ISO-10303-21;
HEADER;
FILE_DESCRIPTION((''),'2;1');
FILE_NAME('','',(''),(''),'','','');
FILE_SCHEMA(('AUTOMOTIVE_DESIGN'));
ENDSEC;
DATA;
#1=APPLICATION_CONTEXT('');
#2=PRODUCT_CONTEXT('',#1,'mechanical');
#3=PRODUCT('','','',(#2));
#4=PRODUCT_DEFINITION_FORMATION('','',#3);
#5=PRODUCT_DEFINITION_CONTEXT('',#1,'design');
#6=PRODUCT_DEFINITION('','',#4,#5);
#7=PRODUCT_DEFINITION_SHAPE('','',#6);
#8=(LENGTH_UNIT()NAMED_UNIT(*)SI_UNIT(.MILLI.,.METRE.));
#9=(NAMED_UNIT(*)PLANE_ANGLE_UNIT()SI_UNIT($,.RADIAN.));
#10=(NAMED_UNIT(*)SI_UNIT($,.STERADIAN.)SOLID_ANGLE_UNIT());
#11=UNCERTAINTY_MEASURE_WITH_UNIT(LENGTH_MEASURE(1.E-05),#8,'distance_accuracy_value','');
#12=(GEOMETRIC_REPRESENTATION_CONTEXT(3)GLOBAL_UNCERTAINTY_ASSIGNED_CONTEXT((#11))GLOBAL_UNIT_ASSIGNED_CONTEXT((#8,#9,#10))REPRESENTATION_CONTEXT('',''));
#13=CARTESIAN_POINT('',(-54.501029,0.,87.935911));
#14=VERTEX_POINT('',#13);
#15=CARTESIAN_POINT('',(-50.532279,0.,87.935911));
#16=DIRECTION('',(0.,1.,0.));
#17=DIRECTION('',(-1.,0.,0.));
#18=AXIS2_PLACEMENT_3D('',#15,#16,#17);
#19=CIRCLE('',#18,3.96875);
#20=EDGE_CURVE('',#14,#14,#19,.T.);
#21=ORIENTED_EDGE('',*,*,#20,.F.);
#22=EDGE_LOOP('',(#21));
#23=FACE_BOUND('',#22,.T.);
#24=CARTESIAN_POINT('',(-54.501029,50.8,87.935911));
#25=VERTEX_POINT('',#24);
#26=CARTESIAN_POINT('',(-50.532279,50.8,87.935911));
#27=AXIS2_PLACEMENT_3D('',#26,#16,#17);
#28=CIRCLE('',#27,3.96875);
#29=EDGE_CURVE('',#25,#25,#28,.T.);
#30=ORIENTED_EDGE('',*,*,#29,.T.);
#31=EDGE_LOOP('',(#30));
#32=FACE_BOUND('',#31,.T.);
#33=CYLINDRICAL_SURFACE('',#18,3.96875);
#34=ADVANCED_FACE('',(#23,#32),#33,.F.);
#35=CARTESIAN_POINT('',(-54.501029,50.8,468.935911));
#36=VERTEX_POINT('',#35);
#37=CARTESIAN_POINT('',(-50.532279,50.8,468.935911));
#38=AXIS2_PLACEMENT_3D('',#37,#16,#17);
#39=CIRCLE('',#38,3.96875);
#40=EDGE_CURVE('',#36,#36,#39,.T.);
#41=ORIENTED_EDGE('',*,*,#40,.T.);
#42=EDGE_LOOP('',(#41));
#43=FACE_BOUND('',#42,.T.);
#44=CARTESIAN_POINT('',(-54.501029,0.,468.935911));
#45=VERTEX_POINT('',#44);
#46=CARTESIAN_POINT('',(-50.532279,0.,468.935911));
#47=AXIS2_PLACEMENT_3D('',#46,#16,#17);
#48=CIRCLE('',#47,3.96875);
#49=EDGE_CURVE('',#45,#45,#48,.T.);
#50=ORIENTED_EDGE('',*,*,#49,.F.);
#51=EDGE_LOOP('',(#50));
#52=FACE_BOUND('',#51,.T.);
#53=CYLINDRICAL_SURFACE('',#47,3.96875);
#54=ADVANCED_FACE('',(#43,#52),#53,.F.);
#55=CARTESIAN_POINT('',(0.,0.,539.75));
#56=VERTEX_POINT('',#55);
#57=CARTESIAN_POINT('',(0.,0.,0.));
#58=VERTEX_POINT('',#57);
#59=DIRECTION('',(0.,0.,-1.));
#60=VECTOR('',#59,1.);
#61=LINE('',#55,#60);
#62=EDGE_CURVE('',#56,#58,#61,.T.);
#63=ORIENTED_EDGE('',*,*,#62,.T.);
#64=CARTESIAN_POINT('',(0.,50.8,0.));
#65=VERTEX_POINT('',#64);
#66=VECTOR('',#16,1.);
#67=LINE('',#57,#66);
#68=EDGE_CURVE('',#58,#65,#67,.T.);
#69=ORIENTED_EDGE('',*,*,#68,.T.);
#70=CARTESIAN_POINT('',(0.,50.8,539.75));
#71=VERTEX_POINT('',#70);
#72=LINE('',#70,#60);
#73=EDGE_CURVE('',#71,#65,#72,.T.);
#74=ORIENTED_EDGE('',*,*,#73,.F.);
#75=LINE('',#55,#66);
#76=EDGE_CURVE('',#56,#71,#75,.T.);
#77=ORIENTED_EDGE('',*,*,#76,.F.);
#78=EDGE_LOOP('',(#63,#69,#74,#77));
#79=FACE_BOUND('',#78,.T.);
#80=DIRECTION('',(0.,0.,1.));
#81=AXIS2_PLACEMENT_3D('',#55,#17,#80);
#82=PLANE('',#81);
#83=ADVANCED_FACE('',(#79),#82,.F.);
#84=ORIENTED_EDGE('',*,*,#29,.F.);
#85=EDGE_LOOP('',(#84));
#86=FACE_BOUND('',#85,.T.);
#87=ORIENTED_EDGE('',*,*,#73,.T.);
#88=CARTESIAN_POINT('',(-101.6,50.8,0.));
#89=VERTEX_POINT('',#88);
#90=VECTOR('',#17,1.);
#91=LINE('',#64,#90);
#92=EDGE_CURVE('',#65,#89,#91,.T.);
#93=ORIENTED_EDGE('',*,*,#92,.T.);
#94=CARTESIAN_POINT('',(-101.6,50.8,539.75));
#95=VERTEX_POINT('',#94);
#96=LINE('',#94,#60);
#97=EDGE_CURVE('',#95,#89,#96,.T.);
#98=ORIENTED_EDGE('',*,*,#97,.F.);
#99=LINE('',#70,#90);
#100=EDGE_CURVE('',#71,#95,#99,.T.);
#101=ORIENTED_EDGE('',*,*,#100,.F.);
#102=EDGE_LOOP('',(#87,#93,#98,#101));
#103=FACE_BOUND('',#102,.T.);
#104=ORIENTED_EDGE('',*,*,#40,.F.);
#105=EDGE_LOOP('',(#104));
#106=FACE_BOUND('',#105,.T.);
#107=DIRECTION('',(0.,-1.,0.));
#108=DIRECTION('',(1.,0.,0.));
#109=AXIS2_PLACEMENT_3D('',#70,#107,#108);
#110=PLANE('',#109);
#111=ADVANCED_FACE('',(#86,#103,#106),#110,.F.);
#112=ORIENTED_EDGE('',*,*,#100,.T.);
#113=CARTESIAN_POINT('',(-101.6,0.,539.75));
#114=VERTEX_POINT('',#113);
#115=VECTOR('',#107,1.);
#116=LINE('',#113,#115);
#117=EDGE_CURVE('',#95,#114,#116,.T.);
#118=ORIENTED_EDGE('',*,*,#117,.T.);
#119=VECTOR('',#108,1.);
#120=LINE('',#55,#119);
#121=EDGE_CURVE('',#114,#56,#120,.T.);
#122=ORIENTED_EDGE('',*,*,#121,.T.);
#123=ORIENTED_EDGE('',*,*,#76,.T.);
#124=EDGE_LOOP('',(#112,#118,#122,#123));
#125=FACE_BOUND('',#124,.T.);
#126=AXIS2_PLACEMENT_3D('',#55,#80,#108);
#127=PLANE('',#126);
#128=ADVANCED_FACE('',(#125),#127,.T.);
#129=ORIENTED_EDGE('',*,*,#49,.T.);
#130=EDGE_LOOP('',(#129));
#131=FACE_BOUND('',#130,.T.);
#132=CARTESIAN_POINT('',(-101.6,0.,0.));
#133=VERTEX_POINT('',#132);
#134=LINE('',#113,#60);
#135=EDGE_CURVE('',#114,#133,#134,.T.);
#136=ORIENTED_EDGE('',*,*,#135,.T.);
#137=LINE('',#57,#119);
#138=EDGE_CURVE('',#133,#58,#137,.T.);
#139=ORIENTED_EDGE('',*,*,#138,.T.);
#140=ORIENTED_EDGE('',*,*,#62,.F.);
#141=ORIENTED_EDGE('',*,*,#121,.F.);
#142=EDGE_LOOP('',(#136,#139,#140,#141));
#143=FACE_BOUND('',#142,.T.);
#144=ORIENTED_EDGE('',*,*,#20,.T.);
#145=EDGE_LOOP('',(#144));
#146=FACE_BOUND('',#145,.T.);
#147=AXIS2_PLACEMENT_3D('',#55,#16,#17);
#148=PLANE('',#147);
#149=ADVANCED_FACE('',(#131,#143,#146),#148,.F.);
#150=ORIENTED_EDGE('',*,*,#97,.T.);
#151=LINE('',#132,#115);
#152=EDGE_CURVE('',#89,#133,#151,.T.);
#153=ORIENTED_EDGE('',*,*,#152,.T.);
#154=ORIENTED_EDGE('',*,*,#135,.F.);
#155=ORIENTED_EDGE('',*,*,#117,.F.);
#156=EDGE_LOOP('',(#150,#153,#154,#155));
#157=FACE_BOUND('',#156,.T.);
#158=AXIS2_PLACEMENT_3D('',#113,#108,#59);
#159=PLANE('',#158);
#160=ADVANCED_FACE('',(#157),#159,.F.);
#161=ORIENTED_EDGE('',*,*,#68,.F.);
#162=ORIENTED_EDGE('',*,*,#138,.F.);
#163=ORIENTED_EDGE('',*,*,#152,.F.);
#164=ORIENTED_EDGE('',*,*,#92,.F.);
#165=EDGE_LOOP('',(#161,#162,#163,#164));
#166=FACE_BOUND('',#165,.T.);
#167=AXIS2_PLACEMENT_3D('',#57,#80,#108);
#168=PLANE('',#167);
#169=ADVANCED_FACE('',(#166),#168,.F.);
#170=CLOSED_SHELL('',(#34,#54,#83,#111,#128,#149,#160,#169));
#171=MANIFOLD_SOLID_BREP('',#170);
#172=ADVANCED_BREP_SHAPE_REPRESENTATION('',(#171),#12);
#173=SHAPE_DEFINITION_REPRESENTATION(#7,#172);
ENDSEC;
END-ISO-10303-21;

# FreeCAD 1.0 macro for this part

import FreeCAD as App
import Part
import Sketcher
Q = App.Units.Quantity


def add_polygon(sketch, points):
    """Adds a closed chain of lines whose ends are joined by coincident constraints."""
    first, n = sketch.GeometryCount, len(points)
    for a, b in zip(points, points[1:] + points[:1]):
        sketch.addGeometry(Part.LineSegment(App.Vector(*a, 0), App.Vector(*b, 0)), False)
    for i in range(n):
        sketch.addConstraint(Sketcher.Constraint("Coincident", first + i, 2, first + (i + 1) % n, 1))

doc = App.newDocument("Part")
body = doc.addObject("PartDesign::Body", "Body")

# Sketch on XY plane
sketch1 = doc.addObject("Sketcher::SketchObject", "Sketch")
body.addObject(sketch1)
sketch1.AttachmentSupport = (doc.XY_Plane, [""])
sketch1.MapMode = "FlatFace"
add_polygon(sketch1, [(-102, 51), (-102, 0), (0, 0), (0, 51)])  # lines 0-3
sketch1.addConstraint([
    Sketcher.Constraint("Vertical", 0),
    Sketcher.Constraint("Horizontal", 1),
    Sketcher.Constraint("Vertical", 2),
    Sketcher.Constraint("Horizontal", 3),
    Sketcher.Constraint("Coincident", 1, 2, -1, 1),
    Sketcher.Constraint("DistanceX", 1, 1, 1, 2, Q("4 in")),
    Sketcher.Constraint("DistanceY", 0, 2, 0, 1, Q("2 in")),
])
pad1 = doc.addObject("PartDesign::Pad", "Pad")
body.addObject(pad1)
pad1.Profile = sketch1
pad1.Length = Q("21.25 in")

# Sketch on XZ plane
sketch2 = doc.addObject("Sketcher::SketchObject", "Sketch001")
body.addObject(sketch2)
sketch2.AttachmentSupport = (doc.XZ_Plane, [""])
sketch2.MapMode = "FlatFace"
sketch2.AttachmentOffset = App.Placement(App.Vector(0, 0, -2 * 25.4), App.Rotation())
sketch2.addGeometry([
    Part.Circle(App.Vector(-50.5, 87.9, 0), App.Vector(0, 0, 1), 4),
    Part.Circle(App.Vector(-50.5, 468.9, 0), App.Vector(0, 0, 1), 4),
], False)
sketch2.addConstraint([
    Sketcher.Constraint("Equal", 0, 1),
    Sketcher.Constraint("Vertical", 0, 3, 1, 3),
    Sketcher.Constraint("Diameter", 0, Q("0.3125 in")),
    Sketcher.Constraint("DistanceY", 0, 3, 1, 3, Q("15 in")),
    Sketcher.Constraint("DistanceX", 0, 3, -1, 1, Q("50.532279 mm")),
    Sketcher.Constraint("DistanceY", -1, 1, 0, 3, Q("87.935911 mm")),
])
pocket1 = doc.addObject("PartDesign::Pocket", "Pocket")
body.addObject(pocket1)
pocket1.Profile = sketch2
pocket1.Type = "ThroughAll"
pocket1.Reversed = True

doc.recompute()
